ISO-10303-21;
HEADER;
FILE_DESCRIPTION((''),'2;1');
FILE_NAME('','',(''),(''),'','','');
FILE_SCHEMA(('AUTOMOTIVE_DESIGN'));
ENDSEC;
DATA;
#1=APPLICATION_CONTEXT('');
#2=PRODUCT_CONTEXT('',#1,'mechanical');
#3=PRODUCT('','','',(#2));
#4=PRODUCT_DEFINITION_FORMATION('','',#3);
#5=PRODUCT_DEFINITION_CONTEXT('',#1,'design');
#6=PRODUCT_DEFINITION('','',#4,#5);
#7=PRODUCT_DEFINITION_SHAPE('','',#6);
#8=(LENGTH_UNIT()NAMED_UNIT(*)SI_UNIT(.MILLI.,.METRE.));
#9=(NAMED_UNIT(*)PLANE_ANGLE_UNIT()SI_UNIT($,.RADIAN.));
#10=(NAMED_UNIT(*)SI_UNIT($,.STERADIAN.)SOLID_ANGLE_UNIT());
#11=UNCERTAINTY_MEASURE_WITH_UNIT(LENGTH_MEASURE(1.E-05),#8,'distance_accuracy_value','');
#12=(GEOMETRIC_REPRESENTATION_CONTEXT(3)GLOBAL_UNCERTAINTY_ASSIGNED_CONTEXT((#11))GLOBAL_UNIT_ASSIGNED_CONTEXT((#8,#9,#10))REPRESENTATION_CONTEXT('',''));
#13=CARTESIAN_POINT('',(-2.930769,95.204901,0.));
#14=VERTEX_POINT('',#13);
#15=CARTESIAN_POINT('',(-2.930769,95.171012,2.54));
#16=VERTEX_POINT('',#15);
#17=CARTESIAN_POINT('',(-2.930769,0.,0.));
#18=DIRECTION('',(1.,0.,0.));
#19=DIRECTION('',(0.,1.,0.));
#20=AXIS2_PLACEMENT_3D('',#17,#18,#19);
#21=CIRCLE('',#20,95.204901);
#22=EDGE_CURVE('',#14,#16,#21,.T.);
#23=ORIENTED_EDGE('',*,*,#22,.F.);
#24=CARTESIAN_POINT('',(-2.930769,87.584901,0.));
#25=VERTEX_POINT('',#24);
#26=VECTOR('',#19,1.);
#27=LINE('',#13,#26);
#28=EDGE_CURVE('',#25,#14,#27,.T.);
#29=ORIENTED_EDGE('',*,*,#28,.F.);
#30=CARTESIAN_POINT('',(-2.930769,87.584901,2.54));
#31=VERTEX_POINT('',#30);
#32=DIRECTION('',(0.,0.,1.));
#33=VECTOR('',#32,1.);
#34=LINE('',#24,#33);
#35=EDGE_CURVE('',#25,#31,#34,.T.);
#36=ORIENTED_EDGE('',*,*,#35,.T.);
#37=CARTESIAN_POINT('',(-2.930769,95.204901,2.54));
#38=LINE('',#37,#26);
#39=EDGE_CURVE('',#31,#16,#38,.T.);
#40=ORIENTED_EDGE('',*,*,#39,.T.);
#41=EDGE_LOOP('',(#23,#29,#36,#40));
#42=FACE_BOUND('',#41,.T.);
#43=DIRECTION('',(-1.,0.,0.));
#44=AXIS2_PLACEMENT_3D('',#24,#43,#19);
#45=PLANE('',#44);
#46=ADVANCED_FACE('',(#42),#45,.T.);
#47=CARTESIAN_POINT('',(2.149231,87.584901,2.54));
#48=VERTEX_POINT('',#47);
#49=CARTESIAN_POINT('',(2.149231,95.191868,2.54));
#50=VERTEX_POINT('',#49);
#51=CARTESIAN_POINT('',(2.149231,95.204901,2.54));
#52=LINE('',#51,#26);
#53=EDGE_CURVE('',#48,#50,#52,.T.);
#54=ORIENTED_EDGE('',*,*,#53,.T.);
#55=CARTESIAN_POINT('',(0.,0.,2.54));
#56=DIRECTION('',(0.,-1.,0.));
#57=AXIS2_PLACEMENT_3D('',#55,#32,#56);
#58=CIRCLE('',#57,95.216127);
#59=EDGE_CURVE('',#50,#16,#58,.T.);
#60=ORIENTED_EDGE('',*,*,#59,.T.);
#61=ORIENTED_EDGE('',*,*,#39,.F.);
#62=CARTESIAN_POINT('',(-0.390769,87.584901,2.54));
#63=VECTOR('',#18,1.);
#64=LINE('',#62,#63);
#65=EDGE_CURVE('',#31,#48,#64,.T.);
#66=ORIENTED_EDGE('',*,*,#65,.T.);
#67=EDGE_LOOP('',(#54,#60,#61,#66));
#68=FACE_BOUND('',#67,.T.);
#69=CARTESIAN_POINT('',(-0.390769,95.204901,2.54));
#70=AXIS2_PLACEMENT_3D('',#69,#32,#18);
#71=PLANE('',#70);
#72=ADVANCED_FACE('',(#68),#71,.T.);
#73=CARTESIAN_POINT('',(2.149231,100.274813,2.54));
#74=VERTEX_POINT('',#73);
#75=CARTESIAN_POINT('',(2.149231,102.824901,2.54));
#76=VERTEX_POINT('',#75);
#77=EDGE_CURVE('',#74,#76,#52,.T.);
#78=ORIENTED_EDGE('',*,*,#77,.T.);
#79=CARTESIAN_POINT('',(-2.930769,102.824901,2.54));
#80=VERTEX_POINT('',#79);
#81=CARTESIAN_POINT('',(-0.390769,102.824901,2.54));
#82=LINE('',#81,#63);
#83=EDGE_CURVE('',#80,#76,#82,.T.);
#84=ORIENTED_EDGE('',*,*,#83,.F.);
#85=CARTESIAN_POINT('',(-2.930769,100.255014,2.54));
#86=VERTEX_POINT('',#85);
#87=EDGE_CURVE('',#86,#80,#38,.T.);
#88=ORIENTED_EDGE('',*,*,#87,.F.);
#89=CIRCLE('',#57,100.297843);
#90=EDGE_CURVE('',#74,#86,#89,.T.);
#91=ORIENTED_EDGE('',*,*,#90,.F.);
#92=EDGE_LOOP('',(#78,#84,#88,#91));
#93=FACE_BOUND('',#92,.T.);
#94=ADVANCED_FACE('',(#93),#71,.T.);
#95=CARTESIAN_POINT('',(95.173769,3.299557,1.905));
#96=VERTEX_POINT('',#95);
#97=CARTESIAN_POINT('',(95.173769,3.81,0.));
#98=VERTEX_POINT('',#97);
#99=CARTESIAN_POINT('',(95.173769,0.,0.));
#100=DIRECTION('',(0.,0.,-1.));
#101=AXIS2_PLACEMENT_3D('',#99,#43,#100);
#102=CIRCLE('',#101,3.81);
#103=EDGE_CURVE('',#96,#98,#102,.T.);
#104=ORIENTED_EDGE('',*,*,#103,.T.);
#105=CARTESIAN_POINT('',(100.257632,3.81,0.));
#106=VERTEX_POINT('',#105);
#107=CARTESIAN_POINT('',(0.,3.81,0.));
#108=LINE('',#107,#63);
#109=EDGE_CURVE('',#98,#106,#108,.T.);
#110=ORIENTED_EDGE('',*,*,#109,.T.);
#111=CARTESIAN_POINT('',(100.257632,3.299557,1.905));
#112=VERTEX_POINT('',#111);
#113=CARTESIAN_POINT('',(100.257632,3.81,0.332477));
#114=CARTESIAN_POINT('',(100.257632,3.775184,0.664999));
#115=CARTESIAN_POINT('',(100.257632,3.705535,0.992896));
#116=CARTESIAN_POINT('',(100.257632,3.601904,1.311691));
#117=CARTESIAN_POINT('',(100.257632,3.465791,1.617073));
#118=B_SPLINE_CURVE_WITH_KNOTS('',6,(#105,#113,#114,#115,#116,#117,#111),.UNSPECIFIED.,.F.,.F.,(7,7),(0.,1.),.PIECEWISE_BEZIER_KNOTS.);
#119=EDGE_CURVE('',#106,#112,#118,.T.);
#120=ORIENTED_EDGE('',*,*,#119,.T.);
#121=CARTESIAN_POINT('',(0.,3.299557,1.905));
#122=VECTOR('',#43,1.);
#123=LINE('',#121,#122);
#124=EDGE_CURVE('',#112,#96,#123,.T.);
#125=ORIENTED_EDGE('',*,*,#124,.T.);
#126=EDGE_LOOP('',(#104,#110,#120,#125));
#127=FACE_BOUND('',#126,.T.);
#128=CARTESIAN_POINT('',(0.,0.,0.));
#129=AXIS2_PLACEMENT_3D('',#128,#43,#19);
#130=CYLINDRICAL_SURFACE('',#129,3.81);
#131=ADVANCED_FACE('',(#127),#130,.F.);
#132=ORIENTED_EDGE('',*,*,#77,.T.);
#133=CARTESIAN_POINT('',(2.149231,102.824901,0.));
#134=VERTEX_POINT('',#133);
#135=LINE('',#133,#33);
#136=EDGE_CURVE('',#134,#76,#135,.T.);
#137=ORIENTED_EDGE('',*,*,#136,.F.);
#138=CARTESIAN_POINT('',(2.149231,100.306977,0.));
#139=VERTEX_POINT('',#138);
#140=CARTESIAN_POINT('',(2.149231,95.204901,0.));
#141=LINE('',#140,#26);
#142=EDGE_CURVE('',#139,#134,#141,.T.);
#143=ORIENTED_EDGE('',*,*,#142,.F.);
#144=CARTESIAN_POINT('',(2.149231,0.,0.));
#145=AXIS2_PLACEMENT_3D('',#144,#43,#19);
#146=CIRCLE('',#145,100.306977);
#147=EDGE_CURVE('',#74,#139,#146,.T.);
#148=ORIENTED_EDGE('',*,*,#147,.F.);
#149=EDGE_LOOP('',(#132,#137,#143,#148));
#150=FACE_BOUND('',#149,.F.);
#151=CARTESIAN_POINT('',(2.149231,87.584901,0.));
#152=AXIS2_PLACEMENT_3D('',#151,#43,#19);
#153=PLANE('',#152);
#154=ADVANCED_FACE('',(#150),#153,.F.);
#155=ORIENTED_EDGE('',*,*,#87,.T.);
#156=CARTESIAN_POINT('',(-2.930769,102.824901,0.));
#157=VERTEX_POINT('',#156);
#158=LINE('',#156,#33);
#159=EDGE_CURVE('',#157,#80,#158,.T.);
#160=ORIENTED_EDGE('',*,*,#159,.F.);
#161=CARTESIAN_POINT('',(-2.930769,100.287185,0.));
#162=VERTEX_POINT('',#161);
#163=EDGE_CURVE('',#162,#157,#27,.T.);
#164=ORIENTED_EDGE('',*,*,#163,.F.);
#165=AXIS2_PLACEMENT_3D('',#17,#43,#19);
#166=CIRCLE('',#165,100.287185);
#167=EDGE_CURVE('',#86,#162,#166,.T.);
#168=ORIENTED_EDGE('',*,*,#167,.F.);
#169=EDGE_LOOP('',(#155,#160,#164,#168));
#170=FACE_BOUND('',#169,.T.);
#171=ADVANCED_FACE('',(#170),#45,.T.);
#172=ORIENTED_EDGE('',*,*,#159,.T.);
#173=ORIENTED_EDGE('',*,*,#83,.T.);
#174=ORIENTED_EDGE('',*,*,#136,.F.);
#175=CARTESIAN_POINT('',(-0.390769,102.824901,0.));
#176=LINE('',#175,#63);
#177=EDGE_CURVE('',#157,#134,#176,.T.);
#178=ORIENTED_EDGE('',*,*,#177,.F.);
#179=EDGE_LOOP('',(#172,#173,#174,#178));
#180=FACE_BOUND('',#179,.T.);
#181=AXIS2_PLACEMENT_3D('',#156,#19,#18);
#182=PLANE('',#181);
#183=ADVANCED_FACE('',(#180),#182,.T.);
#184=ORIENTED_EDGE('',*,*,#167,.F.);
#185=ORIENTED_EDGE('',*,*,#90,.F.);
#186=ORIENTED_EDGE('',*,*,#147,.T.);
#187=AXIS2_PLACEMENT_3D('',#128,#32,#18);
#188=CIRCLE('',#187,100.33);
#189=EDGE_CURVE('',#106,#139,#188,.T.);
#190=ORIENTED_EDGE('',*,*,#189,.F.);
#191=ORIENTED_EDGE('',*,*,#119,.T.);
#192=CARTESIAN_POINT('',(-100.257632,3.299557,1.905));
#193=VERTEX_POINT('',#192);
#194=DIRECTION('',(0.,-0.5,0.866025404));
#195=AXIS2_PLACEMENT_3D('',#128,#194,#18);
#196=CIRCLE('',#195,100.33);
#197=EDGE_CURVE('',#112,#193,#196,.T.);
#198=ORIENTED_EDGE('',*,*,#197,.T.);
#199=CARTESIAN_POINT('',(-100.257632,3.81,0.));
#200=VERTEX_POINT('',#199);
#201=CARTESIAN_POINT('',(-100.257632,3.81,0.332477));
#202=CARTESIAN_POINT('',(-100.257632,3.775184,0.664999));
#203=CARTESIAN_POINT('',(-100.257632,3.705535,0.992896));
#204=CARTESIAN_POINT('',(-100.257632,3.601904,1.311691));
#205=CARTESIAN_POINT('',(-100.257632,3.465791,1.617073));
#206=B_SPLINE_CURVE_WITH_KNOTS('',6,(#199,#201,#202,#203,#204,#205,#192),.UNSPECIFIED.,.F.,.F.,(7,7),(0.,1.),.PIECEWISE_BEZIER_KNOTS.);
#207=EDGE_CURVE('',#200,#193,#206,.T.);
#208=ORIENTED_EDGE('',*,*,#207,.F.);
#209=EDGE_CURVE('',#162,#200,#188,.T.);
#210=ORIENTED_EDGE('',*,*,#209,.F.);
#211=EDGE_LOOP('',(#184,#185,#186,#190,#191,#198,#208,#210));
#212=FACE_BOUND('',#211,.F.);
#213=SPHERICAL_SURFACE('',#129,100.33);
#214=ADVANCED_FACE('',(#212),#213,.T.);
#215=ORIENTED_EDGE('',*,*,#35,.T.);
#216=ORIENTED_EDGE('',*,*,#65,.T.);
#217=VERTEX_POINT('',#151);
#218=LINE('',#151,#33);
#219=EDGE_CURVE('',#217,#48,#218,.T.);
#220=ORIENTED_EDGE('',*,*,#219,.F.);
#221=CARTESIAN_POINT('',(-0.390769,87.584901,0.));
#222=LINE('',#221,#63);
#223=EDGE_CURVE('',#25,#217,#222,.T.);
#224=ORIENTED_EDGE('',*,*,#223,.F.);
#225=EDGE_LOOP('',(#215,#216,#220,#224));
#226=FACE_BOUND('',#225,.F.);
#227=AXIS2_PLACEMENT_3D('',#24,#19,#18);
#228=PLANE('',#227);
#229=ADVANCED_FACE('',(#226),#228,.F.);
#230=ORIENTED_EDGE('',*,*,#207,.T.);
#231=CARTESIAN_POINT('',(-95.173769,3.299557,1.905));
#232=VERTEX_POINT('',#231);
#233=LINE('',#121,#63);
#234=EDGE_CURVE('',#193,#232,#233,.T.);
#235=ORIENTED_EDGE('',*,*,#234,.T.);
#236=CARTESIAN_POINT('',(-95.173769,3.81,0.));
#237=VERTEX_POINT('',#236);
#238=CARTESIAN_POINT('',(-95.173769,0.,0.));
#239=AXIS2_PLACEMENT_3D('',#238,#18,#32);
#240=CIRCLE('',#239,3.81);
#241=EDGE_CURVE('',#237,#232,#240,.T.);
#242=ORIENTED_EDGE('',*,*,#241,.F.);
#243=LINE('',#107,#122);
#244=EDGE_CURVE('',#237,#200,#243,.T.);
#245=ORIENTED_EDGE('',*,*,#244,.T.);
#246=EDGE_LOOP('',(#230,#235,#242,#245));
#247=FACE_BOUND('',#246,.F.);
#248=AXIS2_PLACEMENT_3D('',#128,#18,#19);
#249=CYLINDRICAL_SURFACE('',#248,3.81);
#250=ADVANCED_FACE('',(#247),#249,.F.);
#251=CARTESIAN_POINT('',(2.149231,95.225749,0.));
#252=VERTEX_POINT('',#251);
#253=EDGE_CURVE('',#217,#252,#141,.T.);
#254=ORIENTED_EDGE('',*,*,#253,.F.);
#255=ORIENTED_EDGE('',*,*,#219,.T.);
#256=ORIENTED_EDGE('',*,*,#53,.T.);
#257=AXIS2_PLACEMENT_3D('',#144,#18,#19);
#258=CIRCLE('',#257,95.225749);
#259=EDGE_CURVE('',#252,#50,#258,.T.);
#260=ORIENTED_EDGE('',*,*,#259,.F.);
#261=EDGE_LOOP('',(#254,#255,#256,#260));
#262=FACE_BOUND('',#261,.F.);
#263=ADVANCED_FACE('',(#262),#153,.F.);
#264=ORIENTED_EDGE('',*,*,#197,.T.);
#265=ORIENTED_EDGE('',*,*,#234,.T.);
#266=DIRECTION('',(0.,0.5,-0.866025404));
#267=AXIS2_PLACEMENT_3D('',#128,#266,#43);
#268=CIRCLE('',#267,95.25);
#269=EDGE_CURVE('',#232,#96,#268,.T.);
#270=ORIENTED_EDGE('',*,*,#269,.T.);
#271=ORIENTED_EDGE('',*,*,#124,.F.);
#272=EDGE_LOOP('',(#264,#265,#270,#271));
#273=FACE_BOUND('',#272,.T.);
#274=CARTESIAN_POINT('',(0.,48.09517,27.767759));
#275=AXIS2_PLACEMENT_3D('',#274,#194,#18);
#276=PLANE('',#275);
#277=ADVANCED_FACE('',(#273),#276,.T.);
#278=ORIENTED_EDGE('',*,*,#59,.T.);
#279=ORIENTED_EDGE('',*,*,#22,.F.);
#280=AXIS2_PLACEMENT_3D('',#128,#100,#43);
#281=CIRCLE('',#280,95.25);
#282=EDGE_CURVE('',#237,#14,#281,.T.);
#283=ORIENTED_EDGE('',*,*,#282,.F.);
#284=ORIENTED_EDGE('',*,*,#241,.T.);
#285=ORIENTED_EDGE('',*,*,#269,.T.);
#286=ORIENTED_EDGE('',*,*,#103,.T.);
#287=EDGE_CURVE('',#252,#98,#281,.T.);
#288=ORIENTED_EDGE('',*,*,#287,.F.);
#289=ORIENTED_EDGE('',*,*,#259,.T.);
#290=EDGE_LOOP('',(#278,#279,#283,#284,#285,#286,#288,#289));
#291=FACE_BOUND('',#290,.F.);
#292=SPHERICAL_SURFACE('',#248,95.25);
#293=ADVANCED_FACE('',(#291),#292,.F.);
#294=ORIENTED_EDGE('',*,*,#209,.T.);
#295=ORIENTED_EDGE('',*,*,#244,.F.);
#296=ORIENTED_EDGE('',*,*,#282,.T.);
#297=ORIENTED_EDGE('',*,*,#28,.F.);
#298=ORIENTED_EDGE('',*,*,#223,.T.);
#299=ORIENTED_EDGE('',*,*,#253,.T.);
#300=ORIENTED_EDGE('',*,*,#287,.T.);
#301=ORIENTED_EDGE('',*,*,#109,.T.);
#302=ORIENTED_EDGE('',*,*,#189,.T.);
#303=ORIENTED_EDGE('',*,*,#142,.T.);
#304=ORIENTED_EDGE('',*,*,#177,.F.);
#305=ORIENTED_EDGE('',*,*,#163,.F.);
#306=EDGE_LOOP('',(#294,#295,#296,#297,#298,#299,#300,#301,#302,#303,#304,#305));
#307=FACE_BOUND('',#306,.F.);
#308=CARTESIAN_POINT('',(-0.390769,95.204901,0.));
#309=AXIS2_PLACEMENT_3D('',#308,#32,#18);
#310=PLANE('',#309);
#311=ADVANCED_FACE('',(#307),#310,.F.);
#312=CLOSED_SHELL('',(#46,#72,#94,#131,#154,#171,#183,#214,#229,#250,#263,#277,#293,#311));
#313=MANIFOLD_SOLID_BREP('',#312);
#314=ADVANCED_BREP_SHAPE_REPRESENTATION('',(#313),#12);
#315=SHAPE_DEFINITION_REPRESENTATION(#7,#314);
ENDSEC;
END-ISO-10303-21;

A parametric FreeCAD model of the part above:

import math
import FreeCAD as App
import Part
import Sketcher
Q = App.Units.Quantity

doc = App.newDocument("Part")
body = doc.addObject("PartDesign::Body", "Body")

# Sketch on XY plane
sketch1 = body.newObject("Sketcher::SketchObject", "Sketch")
sketch1.AttachmentSupport = (doc.getObject("XY_Plane"), [""])
sketch1.MapMode = "FlatFace"
sketch1.addGeometry([
    Part.LineSegment(App.Vector(-100, 0, 0), App.Vector(-95, 0, 0)),
    Part.ArcOfCircle(Part.Circle(App.Vector(0, 0, 0), App.Vector(0, 0, 1), 95), math.radians(0), math.radians(180)),
    Part.LineSegment(App.Vector(95, 0, 0), App.Vector(100, 0, 0)),
    Part.ArcOfCircle(Part.Circle(App.Vector(0, 0, 0), App.Vector(0, 0, 1), 100), math.radians(0), math.radians(180)),
], False)
sketch1.addConstraint([
    Sketcher.Constraint("Coincident", 0, 2, 1, 2),
    Sketcher.Constraint("Coincident", 1, 1, 2, 1),
    Sketcher.Constraint("Coincident", 2, 2, 3, 1),
    Sketcher.Constraint("Coincident", 3, 2, 0, 1),
    Sketcher.Constraint("Horizontal", 0),
    Sketcher.Constraint("Horizontal", 2),
    Sketcher.Constraint("Coincident", 1, 3, -1, 1),
    Sketcher.Constraint("Coincident", 3, 3, -1, 1),
    Sketcher.Constraint("PointOnObject", 0, 2, -1),
    Sketcher.Constraint("PointOnObject", 1, 1, -1),
    Sketcher.Constraint("Radius", 1, Q("3.75 in")),
    Sketcher.Constraint("Radius", 3, Q("3.95 in")),
])
revolution = body.newObject("PartDesign::Revolution", "Revolution")
revolution.Profile = sketch1
revolution.ReferenceAxis = (sketch1, ["H_Axis"])
revolution.Angle = 30

# Sketch on YZ plane
sketch2 = body.newObject("Sketcher::SketchObject", "Sketch001")
sketch2.AttachmentSupport = (doc.getObject("YZ_Plane"), [""])
sketch2.MapMode = "FlatFace"
sketch2.addGeometry(Part.Circle(App.Vector(0, 0, 0), App.Vector(0, 0, 1), 3.8), False)
sketch2.addConstraint([
    Sketcher.Constraint("Coincident", 0, 3, -1, 1),
    Sketcher.Constraint("Diameter", 0, Q("0.3 in")),
])
pocket1 = body.newObject("PartDesign::Pocket", "Pocket")
pocket1.Profile = sketch2
pocket1.Type = "ThroughAll"
pocket1.Midplane = True

# Sketch on XY plane
sketch3 = body.newObject("Sketcher::SketchObject", "Sketch002")
sketch3.AttachmentSupport = (doc.getObject("XY_Plane"), [""])
sketch3.MapMode = "FlatFace"
sketch3.addGeometry([
    Part.LineSegment(App.Vector(-3, 103, 0), App.Vector(-3, 88, 0)),
    Part.LineSegment(App.Vector(-3, 88, 0), App.Vector(2, 88, 0)),
    Part.LineSegment(App.Vector(2, 88, 0), App.Vector(2, 103, 0)),
    Part.LineSegment(App.Vector(2, 103, 0), App.Vector(-3, 103, 0)),
], False)
sketch3.addConstraint([
    Sketcher.Constraint("Coincident", 0, 2, 1, 1),
    Sketcher.Constraint("Coincident", 1, 2, 2, 1),
    Sketcher.Constraint("Coincident", 2, 2, 3, 1),
    Sketcher.Constraint("Coincident", 3, 2, 0, 1),
    Sketcher.Constraint("Vertical", 0),
    Sketcher.Constraint("Horizontal", 1),
    Sketcher.Constraint("Vertical", 2),
    Sketcher.Constraint("Horizontal", 3),
    Sketcher.Constraint("DistanceX", 1, 1, 1, 2, Q("0.2 in")),
    Sketcher.Constraint("DistanceY", 0, 2, 0, 1, Q("0.6 in")),
    Sketcher.Constraint("DistanceY", -1, 1, 0, 2, 87.584901),
    Sketcher.Constraint("DistanceX", 0, 2, -1, 1, 2.930769),
])
pad1 = body.newObject("PartDesign::Pad", "Pad")
pad1.Profile = sketch3
pad1.Length = Q("0.1 in")

doc.recompute()
